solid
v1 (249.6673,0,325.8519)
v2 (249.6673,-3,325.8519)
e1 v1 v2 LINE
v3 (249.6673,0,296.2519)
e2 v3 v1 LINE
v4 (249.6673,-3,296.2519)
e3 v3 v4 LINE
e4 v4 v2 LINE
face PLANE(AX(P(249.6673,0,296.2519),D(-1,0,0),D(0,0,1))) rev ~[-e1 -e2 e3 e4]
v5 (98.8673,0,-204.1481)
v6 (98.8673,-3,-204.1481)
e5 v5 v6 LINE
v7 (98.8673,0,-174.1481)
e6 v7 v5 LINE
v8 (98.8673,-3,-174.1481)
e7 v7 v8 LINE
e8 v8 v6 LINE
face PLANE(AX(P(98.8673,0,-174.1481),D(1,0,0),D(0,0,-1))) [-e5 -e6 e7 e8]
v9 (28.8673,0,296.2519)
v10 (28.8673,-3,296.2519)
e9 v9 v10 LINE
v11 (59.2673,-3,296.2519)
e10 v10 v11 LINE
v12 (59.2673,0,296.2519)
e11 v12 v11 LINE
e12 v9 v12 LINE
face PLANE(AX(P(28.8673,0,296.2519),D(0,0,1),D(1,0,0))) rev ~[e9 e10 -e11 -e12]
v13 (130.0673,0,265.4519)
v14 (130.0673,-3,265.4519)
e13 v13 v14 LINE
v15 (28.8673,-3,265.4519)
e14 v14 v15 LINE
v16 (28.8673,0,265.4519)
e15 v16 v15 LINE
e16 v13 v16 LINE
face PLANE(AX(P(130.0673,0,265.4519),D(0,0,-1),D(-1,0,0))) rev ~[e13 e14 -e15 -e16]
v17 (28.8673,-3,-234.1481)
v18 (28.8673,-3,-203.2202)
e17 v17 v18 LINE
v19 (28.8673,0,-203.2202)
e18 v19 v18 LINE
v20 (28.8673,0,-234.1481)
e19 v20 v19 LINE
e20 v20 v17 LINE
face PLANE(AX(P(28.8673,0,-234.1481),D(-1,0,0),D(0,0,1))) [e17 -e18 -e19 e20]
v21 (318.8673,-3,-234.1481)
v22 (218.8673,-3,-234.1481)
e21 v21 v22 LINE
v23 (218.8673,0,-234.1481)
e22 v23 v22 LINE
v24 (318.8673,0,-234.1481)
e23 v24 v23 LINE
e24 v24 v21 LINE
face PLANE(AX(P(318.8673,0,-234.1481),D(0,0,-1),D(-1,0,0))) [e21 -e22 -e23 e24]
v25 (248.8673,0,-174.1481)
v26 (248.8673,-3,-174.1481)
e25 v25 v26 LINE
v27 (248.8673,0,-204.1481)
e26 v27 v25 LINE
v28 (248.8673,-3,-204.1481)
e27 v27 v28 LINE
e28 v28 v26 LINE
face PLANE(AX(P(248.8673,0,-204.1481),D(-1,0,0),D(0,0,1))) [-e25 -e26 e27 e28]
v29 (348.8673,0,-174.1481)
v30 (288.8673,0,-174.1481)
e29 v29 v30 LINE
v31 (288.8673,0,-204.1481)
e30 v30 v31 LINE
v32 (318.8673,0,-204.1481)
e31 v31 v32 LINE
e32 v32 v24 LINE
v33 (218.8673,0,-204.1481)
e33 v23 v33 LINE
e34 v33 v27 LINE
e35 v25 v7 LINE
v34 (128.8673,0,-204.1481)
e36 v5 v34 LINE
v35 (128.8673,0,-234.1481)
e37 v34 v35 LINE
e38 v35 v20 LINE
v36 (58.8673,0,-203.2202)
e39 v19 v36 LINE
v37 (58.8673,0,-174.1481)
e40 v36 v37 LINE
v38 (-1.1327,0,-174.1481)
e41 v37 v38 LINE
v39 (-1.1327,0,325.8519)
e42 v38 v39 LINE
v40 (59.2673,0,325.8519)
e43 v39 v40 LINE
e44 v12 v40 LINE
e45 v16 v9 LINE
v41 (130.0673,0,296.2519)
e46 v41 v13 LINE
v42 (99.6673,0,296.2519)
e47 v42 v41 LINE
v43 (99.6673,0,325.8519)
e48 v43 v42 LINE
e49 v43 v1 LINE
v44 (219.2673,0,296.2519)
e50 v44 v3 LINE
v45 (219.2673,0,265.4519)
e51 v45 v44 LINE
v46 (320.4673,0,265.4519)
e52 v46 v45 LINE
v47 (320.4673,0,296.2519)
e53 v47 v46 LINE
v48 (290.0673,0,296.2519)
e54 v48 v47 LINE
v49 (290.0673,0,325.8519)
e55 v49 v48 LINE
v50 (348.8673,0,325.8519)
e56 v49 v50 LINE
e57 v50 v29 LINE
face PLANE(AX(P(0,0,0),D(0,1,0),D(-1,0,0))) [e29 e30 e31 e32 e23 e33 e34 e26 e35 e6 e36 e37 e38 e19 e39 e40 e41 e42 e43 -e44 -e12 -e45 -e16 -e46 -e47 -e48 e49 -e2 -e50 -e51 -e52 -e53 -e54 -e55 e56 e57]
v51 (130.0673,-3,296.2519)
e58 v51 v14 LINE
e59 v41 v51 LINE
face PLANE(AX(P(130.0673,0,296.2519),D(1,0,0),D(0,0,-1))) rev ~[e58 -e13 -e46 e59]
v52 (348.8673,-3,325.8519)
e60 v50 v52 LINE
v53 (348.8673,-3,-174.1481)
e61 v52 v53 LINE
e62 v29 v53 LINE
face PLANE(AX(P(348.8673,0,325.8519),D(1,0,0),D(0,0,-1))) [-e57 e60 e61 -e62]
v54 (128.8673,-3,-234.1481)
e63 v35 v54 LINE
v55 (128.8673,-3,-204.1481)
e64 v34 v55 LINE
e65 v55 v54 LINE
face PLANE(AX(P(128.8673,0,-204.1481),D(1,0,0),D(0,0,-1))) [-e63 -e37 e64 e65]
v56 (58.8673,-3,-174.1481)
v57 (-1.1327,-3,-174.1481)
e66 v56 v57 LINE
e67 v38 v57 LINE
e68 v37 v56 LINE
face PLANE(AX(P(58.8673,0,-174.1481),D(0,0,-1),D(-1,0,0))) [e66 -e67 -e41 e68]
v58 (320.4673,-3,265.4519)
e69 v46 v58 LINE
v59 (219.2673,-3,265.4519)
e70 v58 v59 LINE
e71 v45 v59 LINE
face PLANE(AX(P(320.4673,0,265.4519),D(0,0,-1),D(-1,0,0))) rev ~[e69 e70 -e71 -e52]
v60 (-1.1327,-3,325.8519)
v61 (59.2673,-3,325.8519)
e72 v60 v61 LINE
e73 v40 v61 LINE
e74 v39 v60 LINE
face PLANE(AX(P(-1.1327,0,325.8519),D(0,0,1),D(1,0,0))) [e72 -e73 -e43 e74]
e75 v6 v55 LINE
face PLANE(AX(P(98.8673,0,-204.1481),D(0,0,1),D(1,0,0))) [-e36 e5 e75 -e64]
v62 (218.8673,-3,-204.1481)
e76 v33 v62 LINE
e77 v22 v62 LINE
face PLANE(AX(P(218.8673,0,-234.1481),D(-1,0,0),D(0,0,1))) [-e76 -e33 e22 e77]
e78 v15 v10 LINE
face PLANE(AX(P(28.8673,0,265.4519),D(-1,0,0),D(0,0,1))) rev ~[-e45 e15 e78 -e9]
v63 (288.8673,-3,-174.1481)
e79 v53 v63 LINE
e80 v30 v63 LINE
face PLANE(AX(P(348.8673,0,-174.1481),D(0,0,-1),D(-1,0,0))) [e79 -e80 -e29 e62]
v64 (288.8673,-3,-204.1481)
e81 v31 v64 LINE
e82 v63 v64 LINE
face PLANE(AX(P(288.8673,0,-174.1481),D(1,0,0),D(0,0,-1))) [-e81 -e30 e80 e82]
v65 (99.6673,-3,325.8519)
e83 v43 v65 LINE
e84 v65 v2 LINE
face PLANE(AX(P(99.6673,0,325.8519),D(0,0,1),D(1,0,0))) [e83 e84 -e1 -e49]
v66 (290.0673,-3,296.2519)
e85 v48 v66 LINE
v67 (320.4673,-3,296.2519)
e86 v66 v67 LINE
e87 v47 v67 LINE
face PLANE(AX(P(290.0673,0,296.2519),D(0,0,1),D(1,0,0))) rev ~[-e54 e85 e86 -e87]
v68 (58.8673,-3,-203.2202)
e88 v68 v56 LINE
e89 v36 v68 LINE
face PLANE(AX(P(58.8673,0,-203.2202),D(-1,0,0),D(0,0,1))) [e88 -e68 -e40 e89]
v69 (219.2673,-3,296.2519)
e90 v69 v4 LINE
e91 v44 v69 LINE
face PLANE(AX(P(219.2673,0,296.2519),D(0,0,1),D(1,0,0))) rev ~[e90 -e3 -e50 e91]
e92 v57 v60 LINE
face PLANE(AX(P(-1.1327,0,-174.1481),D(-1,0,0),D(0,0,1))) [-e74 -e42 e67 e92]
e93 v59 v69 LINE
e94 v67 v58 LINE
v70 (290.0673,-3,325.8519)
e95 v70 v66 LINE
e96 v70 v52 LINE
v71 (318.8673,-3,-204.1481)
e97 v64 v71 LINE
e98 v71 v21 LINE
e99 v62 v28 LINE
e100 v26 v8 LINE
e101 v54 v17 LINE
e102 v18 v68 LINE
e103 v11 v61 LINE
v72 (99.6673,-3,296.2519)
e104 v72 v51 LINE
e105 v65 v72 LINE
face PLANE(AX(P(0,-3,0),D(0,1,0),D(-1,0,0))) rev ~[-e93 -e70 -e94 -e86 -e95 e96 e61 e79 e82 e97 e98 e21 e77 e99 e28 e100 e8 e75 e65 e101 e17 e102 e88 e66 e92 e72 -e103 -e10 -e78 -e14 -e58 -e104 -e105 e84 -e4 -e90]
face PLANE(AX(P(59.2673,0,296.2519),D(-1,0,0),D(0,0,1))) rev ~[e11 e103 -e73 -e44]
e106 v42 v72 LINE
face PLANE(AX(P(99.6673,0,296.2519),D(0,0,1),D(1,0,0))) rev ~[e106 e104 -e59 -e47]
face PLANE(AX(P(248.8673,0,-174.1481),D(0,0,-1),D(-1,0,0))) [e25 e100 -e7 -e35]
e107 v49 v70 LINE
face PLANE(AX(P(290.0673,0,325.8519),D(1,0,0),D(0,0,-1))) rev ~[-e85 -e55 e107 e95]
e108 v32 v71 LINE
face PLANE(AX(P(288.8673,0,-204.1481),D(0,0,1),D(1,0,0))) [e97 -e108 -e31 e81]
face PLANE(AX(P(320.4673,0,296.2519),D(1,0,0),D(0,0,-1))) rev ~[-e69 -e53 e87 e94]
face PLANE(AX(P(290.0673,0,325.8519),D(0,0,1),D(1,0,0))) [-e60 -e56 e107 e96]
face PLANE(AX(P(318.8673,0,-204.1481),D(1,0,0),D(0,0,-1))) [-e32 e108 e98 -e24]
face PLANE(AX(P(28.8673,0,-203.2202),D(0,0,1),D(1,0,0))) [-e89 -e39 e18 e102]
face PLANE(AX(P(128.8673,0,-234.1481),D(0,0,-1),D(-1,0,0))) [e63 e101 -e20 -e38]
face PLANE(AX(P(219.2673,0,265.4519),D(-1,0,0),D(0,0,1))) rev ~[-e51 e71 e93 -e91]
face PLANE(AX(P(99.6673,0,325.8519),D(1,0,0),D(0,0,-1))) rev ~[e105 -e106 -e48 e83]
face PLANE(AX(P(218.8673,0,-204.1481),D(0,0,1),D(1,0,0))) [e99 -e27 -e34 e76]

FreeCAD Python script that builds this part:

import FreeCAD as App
import Part
import Sketcher

V = App.Vector
Q = App.Units.Quantity


def add_polygon(sketch, points):
    """Adds a closed chain of lines whose ends are joined by coincident constraints."""
    first, n = sketch.GeometryCount, len(points)
    for a, b in zip(points, points[1:] + points[:1]):
        sketch.addGeometry(Part.LineSegment(App.Vector(*a, 0), App.Vector(*b, 0)), False)
    for i in range(n):
        sketch.addConstraint(Sketcher.Constraint("Coincident", first + i, 2, first + (i + 1) % n, 1))

doc = App.newDocument("Part")
body = doc.addObject("PartDesign::Body", "Body")

# Sketch on XZ plane
sketch1 = body.newObject("Sketcher::SketchObject", "Sketch")
sketch1.AttachmentSupport = (doc.getObject("XZ_Plane"), [""])
sketch1.MapMode = "FlatFace"
add_polygon(sketch1, [(290, 326), (349, 326), (349, -174), (289, -174), (289, -204), (319, -204), (319, -234), (219, -234), (219, -204), (249, -204), (249, -174), (99, -174), (99, -204), (129, -204), (129, -234), (29, -234), (29, -203), (59, -203), (59, -174), (-1, -174), (-1, 326), (59, 326), (59, 296), (29, 296), (29, 265), (130, 265), (130, 296), (100, 296), (100, 326), (250, 326), (250, 296), (219, 296), (219, 265), (320, 265), (320, 296), (290, 296)])  # lines 0-35
sketch1.addConstraint([
    Sketcher.Constraint("Horizontal", 0),
    Sketcher.Constraint("Vertical", 1),
    Sketcher.Constraint("Horizontal", 2),
    Sketcher.Constraint("Vertical", 3),
    Sketcher.Constraint("Horizontal", 4),
    Sketcher.Constraint("Vertical", 5),
    Sketcher.Constraint("Horizontal", 6),
    Sketcher.Constraint("Vertical", 7),
    Sketcher.Constraint("Horizontal", 8),
    Sketcher.Constraint("Vertical", 9),
    Sketcher.Constraint("Horizontal", 10),
    Sketcher.Constraint("Vertical", 11),
    Sketcher.Constraint("Horizontal", 12),
    Sketcher.Constraint("Vertical", 13),
    Sketcher.Constraint("Horizontal", 14),
    Sketcher.Constraint("Vertical", 15),
    Sketcher.Constraint("Horizontal", 16),
    Sketcher.Constraint("Vertical", 17),
    Sketcher.Constraint("Horizontal", 18),
    Sketcher.Constraint("Vertical", 19),
    Sketcher.Constraint("Horizontal", 20),
    Sketcher.Constraint("Vertical", 21),
    Sketcher.Constraint("Horizontal", 22),
    Sketcher.Constraint("Vertical", 23),
    Sketcher.Constraint("Horizontal", 24),
    Sketcher.Constraint("Vertical", 25),
    Sketcher.Constraint("Horizontal", 26),
    Sketcher.Constraint("Vertical", 27),
    Sketcher.Constraint("Horizontal", 28),
    Sketcher.Constraint("Vertical", 29),
    Sketcher.Constraint("Horizontal", 30),
    Sketcher.Constraint("Vertical", 31),
    Sketcher.Constraint("Horizontal", 32),
    Sketcher.Constraint("Vertical", 33),
    Sketcher.Constraint("Horizontal", 34),
    Sketcher.Constraint("Vertical", 35),
    Sketcher.Constraint("Horizontal", 4, 2, 7, 2),
    Sketcher.Constraint("Horizontal", 2, 2, 9, 2),
    Sketcher.Constraint("Horizontal", 8, 2, 11, 2),
    Sketcher.Constraint("Horizontal", 6, 2, 13, 2),
    Sketcher.Constraint("Horizontal", 10, 2, 17, 2),
    Sketcher.Constraint("Horizontal", 0, 2, 19, 2),
    Sketcher.Constraint("Horizontal", 22, 2, 25, 2),
    Sketcher.Constraint("Horizontal", 20, 2, 27, 2),
    Sketcher.Constraint("Horizontal", 26, 2, 29, 2),
    Sketcher.Constraint("Horizontal", 24, 2, 31, 2),
    Sketcher.Constraint("Horizontal", 30, 2, 33, 2),
    Sketcher.Constraint("Vertical", 15, 2, 22, 2),
    Sketcher.Constraint("Equal", 4, 8),
    Sketcher.Constraint("Equal", 8, 12),
    Sketcher.Constraint("Equal", 6, 14),
    Sketcher.Constraint("Equal", 12, 16),
    Sketcher.Constraint("Equal", 2, 18),
    Sketcher.Constraint("Equal", 22, 26),
    Sketcher.Constraint("Equal", 10, 28),
    Sketcher.Constraint("Equal", 26, 30),
    Sketcher.Constraint("Equal", 24, 32),
    Sketcher.Constraint("Equal", 30, 34),
    Sketcher.Constraint("Equal", 16, 3),
    Sketcher.Constraint("Equal", 3, 5),
    Sketcher.Constraint("DistanceX", 4, 1, 4, 2, Q("30 mm")),
    Sketcher.Constraint("DistanceX", 6, 2, 6, 1, Q("100 mm")),
    Sketcher.Constraint("DistanceY", 1, 2, 1, 1, Q("500 mm")),
    Sketcher.Constraint("DistanceX", 22, 2, 22, 1, Q("30.4 mm")),
    Sketcher.Constraint("DistanceY", 21, 2, 21, 1, Q("29.6 mm")),
    Sketcher.Constraint("DistanceY", 23, 2, 23, 1, Q("30.8 mm")),
    Sketcher.Constraint("DistanceX", 4, 2, 1, 2, Q("30 mm")),
    Sketcher.Constraint("DistanceX", 19, 2, 0, 2, Q("350 mm")),
    Sketcher.Constraint("DistanceX", 21, 2, 26, 2, Q("40.4 mm")),
    Sketcher.Constraint("DistanceY", 15, 1, 15, 2, Q("30.928 mm")),
    Sketcher.Constraint("DistanceY", -1, 1, 0, 2, Q("325.852 mm")),
    Sketcher.Constraint("DistanceX", -1, 1, 0, 2, Q("348.8673 mm")),
])
pad1 = body.newObject("PartDesign::Pad", "Pad")
pad1.Profile = sketch1
pad1.Length = 3

doc.recompute()
